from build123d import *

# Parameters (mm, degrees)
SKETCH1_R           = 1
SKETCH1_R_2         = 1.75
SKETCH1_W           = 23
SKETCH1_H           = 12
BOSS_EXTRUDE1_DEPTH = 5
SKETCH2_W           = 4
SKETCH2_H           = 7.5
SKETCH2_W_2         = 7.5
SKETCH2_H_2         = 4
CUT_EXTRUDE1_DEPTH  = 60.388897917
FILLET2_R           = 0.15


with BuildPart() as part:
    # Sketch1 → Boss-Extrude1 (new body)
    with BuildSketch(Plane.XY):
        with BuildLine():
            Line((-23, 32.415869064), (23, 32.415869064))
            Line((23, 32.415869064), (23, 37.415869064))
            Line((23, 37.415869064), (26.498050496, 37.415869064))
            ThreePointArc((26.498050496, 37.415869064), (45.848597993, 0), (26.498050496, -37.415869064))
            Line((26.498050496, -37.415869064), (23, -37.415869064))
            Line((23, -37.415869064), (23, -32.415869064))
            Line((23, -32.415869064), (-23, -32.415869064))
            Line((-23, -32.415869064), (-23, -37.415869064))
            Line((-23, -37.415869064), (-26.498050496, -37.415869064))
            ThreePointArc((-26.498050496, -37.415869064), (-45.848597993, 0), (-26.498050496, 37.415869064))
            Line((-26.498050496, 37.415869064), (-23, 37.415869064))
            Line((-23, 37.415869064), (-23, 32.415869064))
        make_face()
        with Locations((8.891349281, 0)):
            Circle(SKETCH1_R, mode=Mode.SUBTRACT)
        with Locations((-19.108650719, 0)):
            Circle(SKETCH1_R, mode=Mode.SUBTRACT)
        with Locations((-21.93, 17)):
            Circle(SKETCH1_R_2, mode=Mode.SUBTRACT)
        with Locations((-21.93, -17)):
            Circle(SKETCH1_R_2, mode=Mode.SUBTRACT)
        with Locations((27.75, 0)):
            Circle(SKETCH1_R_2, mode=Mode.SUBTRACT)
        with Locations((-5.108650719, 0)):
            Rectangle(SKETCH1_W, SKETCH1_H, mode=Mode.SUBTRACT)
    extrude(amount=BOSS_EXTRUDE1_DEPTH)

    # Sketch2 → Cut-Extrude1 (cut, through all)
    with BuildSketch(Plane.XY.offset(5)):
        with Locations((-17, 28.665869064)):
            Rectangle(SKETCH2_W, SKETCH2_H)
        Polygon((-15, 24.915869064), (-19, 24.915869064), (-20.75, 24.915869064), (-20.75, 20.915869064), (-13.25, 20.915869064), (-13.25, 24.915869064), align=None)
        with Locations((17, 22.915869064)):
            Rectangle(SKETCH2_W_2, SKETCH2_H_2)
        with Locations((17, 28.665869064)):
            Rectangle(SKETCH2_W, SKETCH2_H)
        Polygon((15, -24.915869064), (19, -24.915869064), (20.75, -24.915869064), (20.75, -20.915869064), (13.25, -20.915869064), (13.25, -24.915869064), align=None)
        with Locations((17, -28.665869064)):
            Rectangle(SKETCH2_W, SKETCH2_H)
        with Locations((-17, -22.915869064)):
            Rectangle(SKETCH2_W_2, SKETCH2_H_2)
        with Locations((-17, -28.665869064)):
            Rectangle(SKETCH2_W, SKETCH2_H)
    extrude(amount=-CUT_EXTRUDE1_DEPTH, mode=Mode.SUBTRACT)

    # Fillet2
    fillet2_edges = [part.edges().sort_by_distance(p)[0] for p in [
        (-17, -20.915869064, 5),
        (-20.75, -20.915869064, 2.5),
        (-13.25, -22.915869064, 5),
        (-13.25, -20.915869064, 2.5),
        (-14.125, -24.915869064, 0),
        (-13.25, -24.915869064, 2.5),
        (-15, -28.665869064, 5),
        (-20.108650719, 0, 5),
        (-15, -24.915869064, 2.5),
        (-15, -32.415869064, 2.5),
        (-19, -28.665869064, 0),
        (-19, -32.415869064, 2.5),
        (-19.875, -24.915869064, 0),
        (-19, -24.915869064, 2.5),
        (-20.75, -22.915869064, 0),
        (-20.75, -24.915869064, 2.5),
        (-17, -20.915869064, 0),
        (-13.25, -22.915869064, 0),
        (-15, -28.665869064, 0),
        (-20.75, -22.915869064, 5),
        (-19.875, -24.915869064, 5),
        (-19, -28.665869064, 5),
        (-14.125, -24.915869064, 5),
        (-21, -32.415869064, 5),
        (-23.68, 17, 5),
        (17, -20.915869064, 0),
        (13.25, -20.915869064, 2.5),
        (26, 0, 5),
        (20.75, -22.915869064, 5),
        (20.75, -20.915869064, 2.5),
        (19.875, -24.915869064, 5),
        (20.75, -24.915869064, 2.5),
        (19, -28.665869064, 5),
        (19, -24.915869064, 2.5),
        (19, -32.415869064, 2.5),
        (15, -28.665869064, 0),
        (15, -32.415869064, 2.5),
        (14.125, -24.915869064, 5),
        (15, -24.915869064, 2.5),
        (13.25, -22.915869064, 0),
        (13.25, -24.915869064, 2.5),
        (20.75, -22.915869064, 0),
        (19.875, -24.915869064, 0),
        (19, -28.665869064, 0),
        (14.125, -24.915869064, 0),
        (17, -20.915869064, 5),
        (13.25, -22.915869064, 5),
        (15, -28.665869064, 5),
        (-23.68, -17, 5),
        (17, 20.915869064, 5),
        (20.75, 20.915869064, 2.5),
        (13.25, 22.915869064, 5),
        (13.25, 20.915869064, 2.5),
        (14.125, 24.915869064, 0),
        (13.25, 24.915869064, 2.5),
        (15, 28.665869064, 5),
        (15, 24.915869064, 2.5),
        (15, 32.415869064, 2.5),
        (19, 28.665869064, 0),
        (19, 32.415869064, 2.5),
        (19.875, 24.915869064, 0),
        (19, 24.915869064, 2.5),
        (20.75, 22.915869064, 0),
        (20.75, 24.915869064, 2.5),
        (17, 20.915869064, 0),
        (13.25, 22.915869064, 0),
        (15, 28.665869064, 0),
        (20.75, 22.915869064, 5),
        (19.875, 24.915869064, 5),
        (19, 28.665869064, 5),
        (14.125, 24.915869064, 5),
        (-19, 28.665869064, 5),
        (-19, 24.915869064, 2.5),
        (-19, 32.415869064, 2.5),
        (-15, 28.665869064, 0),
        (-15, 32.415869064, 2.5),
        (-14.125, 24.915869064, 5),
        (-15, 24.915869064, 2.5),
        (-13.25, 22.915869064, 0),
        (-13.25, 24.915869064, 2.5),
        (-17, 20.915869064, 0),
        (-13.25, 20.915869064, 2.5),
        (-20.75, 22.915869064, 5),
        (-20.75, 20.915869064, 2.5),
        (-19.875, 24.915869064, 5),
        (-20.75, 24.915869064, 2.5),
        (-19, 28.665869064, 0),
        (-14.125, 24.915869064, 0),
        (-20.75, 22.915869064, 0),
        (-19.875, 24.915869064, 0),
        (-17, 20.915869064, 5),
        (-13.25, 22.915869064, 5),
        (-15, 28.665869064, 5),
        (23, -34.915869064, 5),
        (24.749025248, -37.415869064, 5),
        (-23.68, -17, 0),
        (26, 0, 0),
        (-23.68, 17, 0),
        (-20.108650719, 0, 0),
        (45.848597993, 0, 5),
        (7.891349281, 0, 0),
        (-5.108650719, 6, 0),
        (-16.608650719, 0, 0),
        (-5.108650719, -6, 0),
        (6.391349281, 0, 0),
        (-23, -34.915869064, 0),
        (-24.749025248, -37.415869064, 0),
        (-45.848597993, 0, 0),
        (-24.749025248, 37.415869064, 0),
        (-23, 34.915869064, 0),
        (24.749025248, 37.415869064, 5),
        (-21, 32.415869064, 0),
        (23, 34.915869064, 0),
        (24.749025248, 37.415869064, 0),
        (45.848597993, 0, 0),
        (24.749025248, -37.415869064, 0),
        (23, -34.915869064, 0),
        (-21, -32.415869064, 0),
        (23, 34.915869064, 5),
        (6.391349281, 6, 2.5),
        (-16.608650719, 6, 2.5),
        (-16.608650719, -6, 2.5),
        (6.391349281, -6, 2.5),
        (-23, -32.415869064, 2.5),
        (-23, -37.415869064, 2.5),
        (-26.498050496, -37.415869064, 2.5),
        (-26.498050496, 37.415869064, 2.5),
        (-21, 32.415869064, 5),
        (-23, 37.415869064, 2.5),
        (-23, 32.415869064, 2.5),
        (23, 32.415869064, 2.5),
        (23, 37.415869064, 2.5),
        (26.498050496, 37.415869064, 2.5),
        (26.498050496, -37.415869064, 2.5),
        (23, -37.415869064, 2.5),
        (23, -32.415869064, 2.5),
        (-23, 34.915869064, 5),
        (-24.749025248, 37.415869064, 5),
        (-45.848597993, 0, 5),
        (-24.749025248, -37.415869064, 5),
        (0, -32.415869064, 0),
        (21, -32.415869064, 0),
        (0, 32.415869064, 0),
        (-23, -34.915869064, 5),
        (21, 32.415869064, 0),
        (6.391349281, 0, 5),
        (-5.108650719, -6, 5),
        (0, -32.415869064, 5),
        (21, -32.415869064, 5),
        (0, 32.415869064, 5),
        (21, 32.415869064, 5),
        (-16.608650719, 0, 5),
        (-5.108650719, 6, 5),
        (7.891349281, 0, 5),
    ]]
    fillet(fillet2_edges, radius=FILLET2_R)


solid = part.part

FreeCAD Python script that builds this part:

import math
import FreeCAD as App
import Part
import Sketcher


def add_polygon(sketch, points):
    """Adds a closed chain of lines whose ends are joined by coincident constraints."""
    first, n = sketch.GeometryCount, len(points)
    for a, b in zip(points, points[1:] + points[:1]):
        sketch.addGeometry(Part.LineSegment(App.Vector(*a, 0), App.Vector(*b, 0)), False)
    for i in range(n):
        sketch.addConstraint(Sketcher.Constraint("Coincident", first + i, 2, first + (i + 1) % n, 1))

doc = App.newDocument("Part")
body = doc.addObject("PartDesign::Body", "Body")

# Sketch on XY plane
sketch1 = doc.addObject("Sketcher::SketchObject", "Sketch")
body.addObject(sketch1)
sketch1.AttachmentSupport = (doc.XY_Plane, [""])
sketch1.MapMode = "FlatFace"
sketch1.addGeometry(Part.LineSegment(App.Vector(23, 32.415869, 0), App.Vector(-23, 32.415869, 0)), False)  # 0
sketch1.addGeometry(Part.LineSegment(App.Vector(-23, 32.415869, 0), App.Vector(-23, 37.415869, 0)), False)  # 1
sketch1.addGeometry(Part.LineSegment(App.Vector(-23, 37.415869, 0), App.Vector(-26.49805, 37.415869, 0)), False)  # 2
sketch1.addGeometry(Part.ArcOfCircle(Part.Circle(App.Vector(0, 0, 0), App.Vector(0, 0, 1), 45.848598), math.radians(125.306261), math.radians(234.693739)), False)  # 3
sketch1.addGeometry(Part.LineSegment(App.Vector(-26.49805, -37.415869, 0), App.Vector(-23, -37.415869, 0)), False)  # 4
sketch1.addGeometry(Part.LineSegment(App.Vector(-23, -37.415869, 0), App.Vector(-23, -32.415869, 0)), False)  # 5
sketch1.addGeometry(Part.LineSegment(App.Vector(-23, -32.415869, 0), App.Vector(23, -32.415869, 0)), False)  # 6
sketch1.addGeometry(Part.LineSegment(App.Vector(23, -32.415869, 0), App.Vector(23, -37.415869, 0)), False)  # 7
sketch1.addGeometry(Part.LineSegment(App.Vector(23, -37.415869, 0), App.Vector(26.49805, -37.415869, 0)), False)  # 8
sketch1.addGeometry(Part.ArcOfCircle(Part.Circle(App.Vector(0, 0, 0), App.Vector(0, 0, 1), 45.848598), math.radians(-54.693739), math.radians(54.693739)), False)  # 9
sketch1.addGeometry(Part.LineSegment(App.Vector(26.49805, 37.415869, 0), App.Vector(23, 37.415869, 0)), False)  # 10
sketch1.addGeometry(Part.LineSegment(App.Vector(23, 37.415869, 0), App.Vector(23, 32.415869, 0)), False)  # 11
sketch1.addGeometry(Part.Circle(App.Vector(-21.93, -17, 0), App.Vector(0, 0, 1), 1.75), False)  # 12
sketch1.addGeometry(Part.Circle(App.Vector(27.75, 0, 0), App.Vector(0, 0, 1), 1.75), False)  # 13
sketch1.addGeometry(Part.Circle(App.Vector(8.891349, 0, 0), App.Vector(0, 0, 1), 1), False)  # 14
add_polygon(sketch1, [(-16.608651, -6), (-16.608651, 6), (6.391349, 6), (6.391349, -6)])  # lines 15-18
sketch1.addGeometry(Part.Circle(App.Vector(-19.108651, 0, 0), App.Vector(0, 0, 1), 1), False)  # 19
sketch1.addGeometry(Part.Circle(App.Vector(-21.93, 17, 0), App.Vector(0, 0, 1), 1.75), False)  # 20
sketch1.addConstraint(Sketcher.Constraint("Coincident", 0, 2, 1, 1))
sketch1.addConstraint(Sketcher.Constraint("Coincident", 1, 2, 2, 1))
sketch1.addConstraint(Sketcher.Constraint("Coincident", 2, 2, 3, 1))
sketch1.addConstraint(Sketcher.Constraint("Coincident", 3, 2, 4, 1))
sketch1.addConstraint(Sketcher.Constraint("Coincident", 4, 2, 5, 1))
sketch1.addConstraint(Sketcher.Constraint("Coincident", 5, 2, 6, 1))
sketch1.addConstraint(Sketcher.Constraint("Coincident", 6, 2, 7, 1))
sketch1.addConstraint(Sketcher.Constraint("Coincident", 7, 2, 8, 1))
sketch1.addConstraint(Sketcher.Constraint("Coincident", 8, 2, 9, 1))
sketch1.addConstraint(Sketcher.Constraint("Coincident", 9, 2, 10, 1))
sketch1.addConstraint(Sketcher.Constraint("Coincident", 10, 2, 11, 1))
sketch1.addConstraint(Sketcher.Constraint("Coincident", 11, 2, 0, 1))
sketch1.addConstraint(Sketcher.Constraint("Horizontal", 0))
sketch1.addConstraint(Sketcher.Constraint("Vertical", 1))
sketch1.addConstraint(Sketcher.Constraint("Horizontal", 2))
sketch1.addConstraint(Sketcher.Constraint("Horizontal", 4))
sketch1.addConstraint(Sketcher.Constraint("Vertical", 5))
sketch1.addConstraint(Sketcher.Constraint("Horizontal", 6))
sketch1.addConstraint(Sketcher.Constraint("Vertical", 7))
sketch1.addConstraint(Sketcher.Constraint("Horizontal", 8))
sketch1.addConstraint(Sketcher.Constraint("Horizontal", 10))
sketch1.addConstraint(Sketcher.Constraint("Vertical", 11))
sketch1.addConstraint(Sketcher.Constraint("Vertical", 15))
sketch1.addConstraint(Sketcher.Constraint("Horizontal", 16))
sketch1.addConstraint(Sketcher.Constraint("Vertical", 17))
sketch1.addConstraint(Sketcher.Constraint("Horizontal", 18))
sketch1.addConstraint(Sketcher.Constraint("Coincident", 3, 3, -1, 1))
sketch1.addConstraint(Sketcher.Constraint("Coincident", 9, 3, -1, 1))
sketch1.addConstraint(Sketcher.Constraint("Equal", 3, 9))
sketch1.addConstraint(Sketcher.Constraint("Equal", 12, 13))
sketch1.addConstraint(Sketcher.Constraint("Equal", 14, 19))
sketch1.addConstraint(Sketcher.Constraint("Equal", 13, 20))
sketch1.addConstraint(Sketcher.Constraint("Symmetric", 0, 2, 6, 2, -1, 1))
sketch1.addConstraint(Sketcher.Constraint("Symmetric", 4, 2, 10, 2, -1, 1))
sketch1.addConstraint(Sketcher.Constraint("Symmetric", 4, 2, 7, 2, -2))
sketch1.addConstraint(Sketcher.Constraint("Symmetric", 12, 3, 20, 3, -1))
sketch1.addConstraint(Sketcher.Constraint("PointOnObject", 13, 3, -1))
sketch1.addConstraint(Sketcher.Constraint("PointOnObject", 14, 3, -1))
sketch1.addConstraint(Sketcher.Constraint("PointOnObject", 19, 3, -1))
sketch1.addConstraint(Sketcher.Constraint("Horizontal", 2, 2, 9, 2))
sketch1.addConstraint(Sketcher.Constraint("Diameter", 14, 2.0))
sketch1.addConstraint(Sketcher.Constraint("Diameter", 12, 3.5))
sketch1.addConstraint(Sketcher.Constraint("DistanceX", 0, 2, 0, 1, 46.0))
sketch1.addConstraint(Sketcher.Constraint("DistanceX", 16, 1, 16, 2, 23.0))
sketch1.addConstraint(Sketcher.Constraint("DistanceY", 1, 1, 1, 2, 5.0))
sketch1.addConstraint(Sketcher.Constraint("DistanceY", 15, 1, 15, 2, 12.0))
sketch1.addConstraint(Sketcher.Constraint("DistanceY", 12, 3, -1, 1, 17.0))
sketch1.addConstraint(Sketcher.Constraint("DistanceY", -1, 1, 15, 2, 6.0))
sketch1.addConstraint(Sketcher.Constraint("DistanceX", 19, 3, 14, 3, 28.0))
sketch1.addConstraint(Sketcher.Constraint("DistanceX", 19, 3, 15, 2, 2.5))
sketch1.addConstraint(Sketcher.Constraint("DistanceX", 12, 3, -1, 1, 21.93))
sketch1.addConstraint(Sketcher.Constraint("DistanceX", -1, 1, 13, 3, 27.75))
sketch1.addConstraint(Sketcher.Constraint("Radius", 3, 45.848598))
sketch1.addConstraint(Sketcher.Constraint("DistanceX", 2, 2, 2, 1, 3.49805))
sketch1.addConstraint(Sketcher.Constraint("DistanceX", 2, 2, 19, 3, 7.3894))
pad1 = doc.addObject("PartDesign::Pad", "Pad")
body.addObject(pad1)
pad1.Profile = sketch1
pad1.Length = 5

# Sketch on XY plane
sketch2 = doc.addObject("Sketcher::SketchObject", "Sketch001")
body.addObject(sketch2)
sketch2.AttachmentSupport = (doc.XY_Plane, [""])
sketch2.MapMode = "FlatFace"
sketch2.AttachmentOffset = App.Placement(App.Vector(0, 0, 5), App.Rotation())
add_polygon(sketch2, [(-19, 32.415869), (-19, 24.915869), (-20.75, 24.915869), (-20.75, 20.915869), (-13.25, 20.915869), (-13.25, 24.915869), (-15, 24.915869), (-15, 32.415869)])  # lines 0-7
add_polygon(sketch2, [(13.25, 24.915869), (13.25, 20.915869), (20.75, 20.915869), (20.75, 24.915869), (19, 24.915869), (19, 32.415869), (15, 32.415869), (15, 24.915869)])  # lines 8-15
add_polygon(sketch2, [(20.75, -24.915869), (20.75, -20.915869), (13.25, -20.915869), (13.25, -24.915869), (15, -24.915869), (15, -32.415869), (19, -32.415869), (19, -24.915869)])  # lines 16-23
add_polygon(sketch2, [(-20.75, -20.915869), (-20.75, -24.915869), (-19, -24.915869), (-19, -32.415869), (-15, -32.415869), (-15, -24.915869), (-13.25, -24.915869), (-13.25, -20.915869)])  # lines 24-31
sketch2.addConstraint(Sketcher.Constraint("Vertical", 0))
sketch2.addConstraint(Sketcher.Constraint("Horizontal", 1))
sketch2.addConstraint(Sketcher.Constraint("Vertical", 2))
sketch2.addConstraint(Sketcher.Constraint("Horizontal", 3))
sketch2.addConstraint(Sketcher.Constraint("Vertical", 4))
sketch2.addConstraint(Sketcher.Constraint("Horizontal", 5))
sketch2.addConstraint(Sketcher.Constraint("Vertical", 6))
sketch2.addConstraint(Sketcher.Constraint("Horizontal", 7))
sketch2.addConstraint(Sketcher.Constraint("Vertical", 8))
sketch2.addConstraint(Sketcher.Constraint("Horizontal", 9))
sketch2.addConstraint(Sketcher.Constraint("Vertical", 10))
sketch2.addConstraint(Sketcher.Constraint("Horizontal", 11))
sketch2.addConstraint(Sketcher.Constraint("Vertical", 12))
sketch2.addConstraint(Sketcher.Constraint("Horizontal", 13))
sketch2.addConstraint(Sketcher.Constraint("Vertical", 14))
sketch2.addConstraint(Sketcher.Constraint("Horizontal", 15))
sketch2.addConstraint(Sketcher.Constraint("Vertical", 16))
sketch2.addConstraint(Sketcher.Constraint("Horizontal", 17))
sketch2.addConstraint(Sketcher.Constraint("Vertical", 18))
sketch2.addConstraint(Sketcher.Constraint("Horizontal", 19))
sketch2.addConstraint(Sketcher.Constraint("Vertical", 20))
sketch2.addConstraint(Sketcher.Constraint("Horizontal", 21))
sketch2.addConstraint(Sketcher.Constraint("Vertical", 22))
sketch2.addConstraint(Sketcher.Constraint("Horizontal", 23))
sketch2.addConstraint(Sketcher.Constraint("Vertical", 24))
sketch2.addConstraint(Sketcher.Constraint("Horizontal", 25))
sketch2.addConstraint(Sketcher.Constraint("Vertical", 26))
sketch2.addConstraint(Sketcher.Constraint("Horizontal", 27))
sketch2.addConstraint(Sketcher.Constraint("Vertical", 28))
sketch2.addConstraint(Sketcher.Constraint("Horizontal", 29))
sketch2.addConstraint(Sketcher.Constraint("Vertical", 30))
sketch2.addConstraint(Sketcher.Constraint("Horizontal", 31))
sketch2.addConstraint(Sketcher.Constraint("Symmetric", 2, 2, 16, 2, -1, 1))
sketch2.addConstraint(Sketcher.Constraint("Symmetric", 4, 2, 18, 2, -1, 1))
sketch2.addConstraint(Sketcher.Constraint("Symmetric", 6, 2, 20, 2, -1, 1))
sketch2.addConstraint(Sketcher.Constraint("Symmetric", 0, 2, 22, 2, -1, 1))
sketch2.addConstraint(Sketcher.Constraint("Symmetric", 10, 2, 24, 2, -1, 1))
sketch2.addConstraint(Sketcher.Constraint("Symmetric", 12, 2, 26, 2, -1, 1))
sketch2.addConstraint(Sketcher.Constraint("Symmetric", 14, 2, 28, 2, -1, 1))
sketch2.addConstraint(Sketcher.Constraint("Symmetric", 8, 2, 30, 2, -1, 1))
sketch2.addConstraint(Sketcher.Constraint("Symmetric", 3, 2, 8, 2, -2))
sketch2.addConstraint(Sketcher.Constraint("Symmetric", 1, 2, 10, 2, -2))
sketch2.addConstraint(Sketcher.Constraint("Symmetric", 7, 2, 12, 2, -2))
sketch2.addConstraint(Sketcher.Constraint("Symmetric", 5, 2, 14, 2, -2))
sketch2.addConstraint(Sketcher.Constraint("Horizontal", 1, 2, 4, 2))
sketch2.addConstraint(Sketcher.Constraint("Equal", 1, 5))
sketch2.addConstraint(Sketcher.Constraint("Equal", 31, 0))
sketch2.addConstraint(Sketcher.Constraint("Equal", 27, 2))
sketch2.addConstraint(Sketcher.Constraint("DistanceX", 7, 2, 7, 1, 4.0))
sketch2.addConstraint(Sketcher.Constraint("DistanceX", 3, 1, 3, 2, 7.5))
sketch2.addConstraint(Sketcher.Constraint("DistanceX", 0, 2, -1, 1, 19.0))
sketch2.addConstraint(Sketcher.Constraint("DistanceY", -1, 1, 0, 2, 24.915869))
pocket1 = doc.addObject("PartDesign::Pocket", "Pocket")
body.addObject(pocket1)
pocket1.Profile = sketch2
pocket1.Type = "ThroughAll"
doc.recompute()

fillet = doc.addObject("PartDesign::Fillet", "Fillet")
body.addObject(fillet)
fillet.Base = (pocket1, ["Edge1"])
fillet.UseAllEdges = True
fillet.Radius = 0.15

doc.recompute()
